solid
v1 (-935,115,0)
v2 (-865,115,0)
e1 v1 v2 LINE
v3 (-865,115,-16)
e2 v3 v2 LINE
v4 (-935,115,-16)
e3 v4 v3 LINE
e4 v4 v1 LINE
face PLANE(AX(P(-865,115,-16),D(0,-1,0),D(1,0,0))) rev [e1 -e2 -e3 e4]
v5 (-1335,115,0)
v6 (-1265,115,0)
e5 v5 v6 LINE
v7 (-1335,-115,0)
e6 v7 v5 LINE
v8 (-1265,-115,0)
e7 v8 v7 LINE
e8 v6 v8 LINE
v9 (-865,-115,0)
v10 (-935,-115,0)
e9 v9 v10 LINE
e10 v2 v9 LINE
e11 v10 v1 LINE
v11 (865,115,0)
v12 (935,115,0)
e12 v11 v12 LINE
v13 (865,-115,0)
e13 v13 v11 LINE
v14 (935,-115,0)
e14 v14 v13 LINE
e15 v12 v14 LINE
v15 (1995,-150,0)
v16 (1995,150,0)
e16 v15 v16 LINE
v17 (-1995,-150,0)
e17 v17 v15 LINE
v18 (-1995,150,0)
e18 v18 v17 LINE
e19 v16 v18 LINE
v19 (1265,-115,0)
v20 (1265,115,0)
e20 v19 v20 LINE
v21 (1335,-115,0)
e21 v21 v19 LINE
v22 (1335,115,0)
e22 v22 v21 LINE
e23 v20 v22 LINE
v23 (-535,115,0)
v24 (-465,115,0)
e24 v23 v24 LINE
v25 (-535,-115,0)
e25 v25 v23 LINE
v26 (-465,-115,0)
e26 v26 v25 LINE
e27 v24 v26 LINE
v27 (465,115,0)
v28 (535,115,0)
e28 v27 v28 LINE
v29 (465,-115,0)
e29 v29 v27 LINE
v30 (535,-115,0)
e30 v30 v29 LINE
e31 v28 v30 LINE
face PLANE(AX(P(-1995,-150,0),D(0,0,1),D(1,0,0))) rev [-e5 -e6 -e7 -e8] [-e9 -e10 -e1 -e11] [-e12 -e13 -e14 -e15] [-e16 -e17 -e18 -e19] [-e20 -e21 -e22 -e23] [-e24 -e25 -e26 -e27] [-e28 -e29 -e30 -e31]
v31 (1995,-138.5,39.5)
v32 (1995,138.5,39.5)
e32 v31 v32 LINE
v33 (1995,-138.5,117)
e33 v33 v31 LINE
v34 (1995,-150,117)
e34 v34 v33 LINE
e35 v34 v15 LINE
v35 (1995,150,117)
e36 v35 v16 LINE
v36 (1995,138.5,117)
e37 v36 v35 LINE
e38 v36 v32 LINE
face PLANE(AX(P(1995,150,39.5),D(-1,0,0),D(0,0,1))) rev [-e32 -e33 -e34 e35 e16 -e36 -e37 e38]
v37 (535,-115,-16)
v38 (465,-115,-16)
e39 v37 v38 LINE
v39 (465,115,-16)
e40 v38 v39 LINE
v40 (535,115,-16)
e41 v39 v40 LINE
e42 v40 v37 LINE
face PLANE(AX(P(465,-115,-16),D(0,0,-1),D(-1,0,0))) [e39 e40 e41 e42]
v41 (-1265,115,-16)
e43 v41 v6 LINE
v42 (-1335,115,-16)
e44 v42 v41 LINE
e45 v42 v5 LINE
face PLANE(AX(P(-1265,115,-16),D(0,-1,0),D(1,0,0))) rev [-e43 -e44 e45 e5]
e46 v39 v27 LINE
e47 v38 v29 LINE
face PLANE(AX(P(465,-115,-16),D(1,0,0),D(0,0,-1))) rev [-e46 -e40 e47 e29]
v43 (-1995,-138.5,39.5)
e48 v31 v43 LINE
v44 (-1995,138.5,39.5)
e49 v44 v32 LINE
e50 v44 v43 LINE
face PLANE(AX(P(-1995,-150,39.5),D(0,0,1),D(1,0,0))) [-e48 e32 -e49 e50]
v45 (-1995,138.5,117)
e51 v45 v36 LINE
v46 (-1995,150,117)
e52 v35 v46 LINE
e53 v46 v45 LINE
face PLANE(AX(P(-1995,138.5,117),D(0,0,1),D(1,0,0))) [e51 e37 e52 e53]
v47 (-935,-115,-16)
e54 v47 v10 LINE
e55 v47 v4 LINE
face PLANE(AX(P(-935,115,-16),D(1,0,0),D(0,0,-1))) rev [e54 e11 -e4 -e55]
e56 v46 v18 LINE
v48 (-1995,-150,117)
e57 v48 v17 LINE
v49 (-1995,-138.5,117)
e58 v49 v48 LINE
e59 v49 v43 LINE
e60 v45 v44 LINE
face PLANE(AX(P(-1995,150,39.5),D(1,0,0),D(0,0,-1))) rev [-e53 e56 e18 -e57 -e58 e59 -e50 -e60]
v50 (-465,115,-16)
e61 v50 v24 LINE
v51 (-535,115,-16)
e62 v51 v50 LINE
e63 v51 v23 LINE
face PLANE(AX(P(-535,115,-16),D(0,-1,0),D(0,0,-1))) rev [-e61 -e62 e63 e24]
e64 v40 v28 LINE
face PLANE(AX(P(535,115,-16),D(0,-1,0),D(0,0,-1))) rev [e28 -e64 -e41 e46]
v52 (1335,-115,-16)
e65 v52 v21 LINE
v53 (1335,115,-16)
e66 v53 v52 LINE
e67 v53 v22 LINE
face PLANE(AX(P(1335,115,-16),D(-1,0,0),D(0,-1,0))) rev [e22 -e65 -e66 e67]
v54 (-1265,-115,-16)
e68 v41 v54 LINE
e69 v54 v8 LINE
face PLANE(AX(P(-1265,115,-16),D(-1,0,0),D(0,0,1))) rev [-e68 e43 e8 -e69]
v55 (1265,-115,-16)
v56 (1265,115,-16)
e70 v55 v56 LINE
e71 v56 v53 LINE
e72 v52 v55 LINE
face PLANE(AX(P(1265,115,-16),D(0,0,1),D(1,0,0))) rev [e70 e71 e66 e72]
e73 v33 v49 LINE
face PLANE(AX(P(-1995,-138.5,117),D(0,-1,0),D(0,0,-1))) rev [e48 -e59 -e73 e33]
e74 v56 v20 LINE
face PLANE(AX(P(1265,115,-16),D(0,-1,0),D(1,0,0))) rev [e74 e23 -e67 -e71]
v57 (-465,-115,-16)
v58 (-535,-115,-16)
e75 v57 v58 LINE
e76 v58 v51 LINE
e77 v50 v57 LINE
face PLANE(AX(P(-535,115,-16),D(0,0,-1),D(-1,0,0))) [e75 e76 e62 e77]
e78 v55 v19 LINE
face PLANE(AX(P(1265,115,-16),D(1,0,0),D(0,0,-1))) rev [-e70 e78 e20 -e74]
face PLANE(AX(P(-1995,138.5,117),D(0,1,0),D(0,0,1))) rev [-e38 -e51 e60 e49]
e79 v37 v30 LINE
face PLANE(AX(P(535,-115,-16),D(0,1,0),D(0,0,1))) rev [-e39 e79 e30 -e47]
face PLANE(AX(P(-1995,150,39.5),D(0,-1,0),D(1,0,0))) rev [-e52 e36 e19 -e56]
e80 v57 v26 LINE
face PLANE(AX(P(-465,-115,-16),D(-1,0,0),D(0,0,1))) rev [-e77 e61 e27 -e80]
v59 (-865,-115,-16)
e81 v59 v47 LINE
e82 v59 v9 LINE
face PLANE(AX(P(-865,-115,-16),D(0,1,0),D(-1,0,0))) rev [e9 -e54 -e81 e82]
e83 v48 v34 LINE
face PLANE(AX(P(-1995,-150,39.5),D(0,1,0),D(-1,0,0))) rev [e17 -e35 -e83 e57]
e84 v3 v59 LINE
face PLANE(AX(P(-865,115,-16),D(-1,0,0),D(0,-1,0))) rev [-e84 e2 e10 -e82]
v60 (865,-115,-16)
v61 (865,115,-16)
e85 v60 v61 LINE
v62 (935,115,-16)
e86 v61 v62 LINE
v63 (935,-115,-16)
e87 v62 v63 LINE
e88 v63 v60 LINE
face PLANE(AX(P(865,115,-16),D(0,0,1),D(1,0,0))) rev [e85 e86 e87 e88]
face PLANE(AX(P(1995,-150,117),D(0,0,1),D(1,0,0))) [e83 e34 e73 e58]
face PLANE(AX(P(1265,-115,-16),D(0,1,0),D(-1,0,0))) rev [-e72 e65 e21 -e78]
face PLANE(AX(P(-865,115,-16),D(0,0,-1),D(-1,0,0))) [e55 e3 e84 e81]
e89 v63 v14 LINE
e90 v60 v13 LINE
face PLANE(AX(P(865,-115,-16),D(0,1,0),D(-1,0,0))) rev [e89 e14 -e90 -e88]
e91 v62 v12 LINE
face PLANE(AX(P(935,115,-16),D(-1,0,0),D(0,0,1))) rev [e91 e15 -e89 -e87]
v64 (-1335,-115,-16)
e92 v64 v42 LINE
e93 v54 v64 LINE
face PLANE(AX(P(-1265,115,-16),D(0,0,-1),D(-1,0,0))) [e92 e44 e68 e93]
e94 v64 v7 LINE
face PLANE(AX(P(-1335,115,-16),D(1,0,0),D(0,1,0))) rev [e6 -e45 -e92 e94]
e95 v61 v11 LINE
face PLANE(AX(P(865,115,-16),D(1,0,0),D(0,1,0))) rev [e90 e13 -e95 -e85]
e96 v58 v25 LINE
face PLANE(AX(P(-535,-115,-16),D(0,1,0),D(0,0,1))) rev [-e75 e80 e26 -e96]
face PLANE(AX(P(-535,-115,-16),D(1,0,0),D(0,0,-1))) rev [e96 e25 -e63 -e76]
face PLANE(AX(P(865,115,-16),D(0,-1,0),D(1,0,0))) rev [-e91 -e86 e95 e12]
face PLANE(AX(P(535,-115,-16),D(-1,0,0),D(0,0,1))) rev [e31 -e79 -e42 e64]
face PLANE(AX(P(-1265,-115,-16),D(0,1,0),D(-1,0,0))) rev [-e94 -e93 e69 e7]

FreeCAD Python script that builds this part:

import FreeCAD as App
import Part
import Sketcher
Q = App.Units.Quantity


def add_polygon(sketch, points):
    """Adds a closed chain of lines whose ends are joined by coincident constraints."""
    first, n = sketch.GeometryCount, len(points)
    for a, b in zip(points, points[1:] + points[:1]):
        sketch.addGeometry(Part.LineSegment(App.Vector(*a, 0), App.Vector(*b, 0)), False)
    for i in range(n):
        sketch.addConstraint(Sketcher.Constraint("Coincident", first + i, 2, first + (i + 1) % n, 1))

doc = App.newDocument("Part")
params = doc.addObject("Spreadsheet::Sheet", "Params")
for row, (alias, value) in enumerate([
    ("sketch1_width", "3990 mm"),
    ("sketch1_height", "300 mm"),
    ("pad1_length", "39.5 mm"),
    ("sketch2_width", "3990 mm"),
    ("sketch2_height", "11.5 mm"),
    ("pad2_length", "77.5 mm"),
    ("sketch3_width", "70 mm"),
    ("sketch3_height", "230 mm"),
    ("pad3_length", "16 mm"),
], start=1):
    params.set(f"A{row}", alias)
    params.set(f"B{row}", "=" + value)
    params.setAlias(f"B{row}", alias)

body = doc.addObject("PartDesign::Body", "Body")

sketch1 = body.newObject("Sketcher::SketchObject", "Sketch")
sketch1.AttachmentSupport = (doc.getObject("XY_Plane"), [""])
sketch1.MapMode = "FlatFace"
add_polygon(sketch1, [(-1995, 150), (-1995, -150), (1995, -150), (1995, 150)])
sketch1.addConstraint([
    Sketcher.Constraint("Vertical", 0),
    Sketcher.Constraint("Horizontal", 1),
    Sketcher.Constraint("Vertical", 2),
    Sketcher.Constraint("Horizontal", 3),
    Sketcher.Constraint("Symmetric", 0, 2, 2, 2, -1, 1),
    Sketcher.Constraint("DistanceX", 1, 1, 1, 2, Q("3990 mm")),
    Sketcher.Constraint("DistanceY", 0, 2, 0, 1, Q("300 mm")),
])
sketch1.setExpression("Constraints[9]", "Params.sketch1_width")
sketch1.setExpression("Constraints[10]", "Params.sketch1_height")
pad1 = body.newObject("PartDesign::Pad", "Pad")
pad1.Profile = sketch1
pad1.setExpression("Length", "Params.pad1_length")

sketch2 = body.newObject("Sketcher::SketchObject", "Sketch001")
sketch2.AttachmentSupport = (doc.getObject("XY_Plane"), [""])
sketch2.MapMode = "FlatFace"
sketch2.AttachmentOffset = App.Placement(App.Vector(0, 0, 39.5), App.Rotation())
add_polygon(sketch2, [(-1995, 150), (-1995, 138), (1995, 138), (1995, 150)])
add_polygon(sketch2, [(-1995, -138), (-1995, -150), (1995, -150), (1995, -138)])
sketch2.addConstraint([
    Sketcher.Constraint("Vertical", 0),
    Sketcher.Constraint("Horizontal", 1),
    Sketcher.Constraint("Vertical", 2),
    Sketcher.Constraint("Horizontal", 3),
    Sketcher.Constraint("Vertical", 4),
    Sketcher.Constraint("Horizontal", 5),
    Sketcher.Constraint("Vertical", 6),
    Sketcher.Constraint("Horizontal", 7),
    Sketcher.Constraint("Symmetric", 2, 2, 4, 2, -1, 1),
    Sketcher.Constraint("Symmetric", 0, 2, 6, 2, -1, 1),
    Sketcher.Constraint("Vertical", 3, 2, 4, 2),
    Sketcher.Constraint("DistanceX", 1, 1, 1, 2, Q("3990 mm")),
    Sketcher.Constraint("DistanceY", 0, 2, 0, 1, Q("11.5 mm")),
    Sketcher.Constraint("DistanceY", -1, 1, 2, 2, Q("150 mm")),
])
sketch2.setExpression("Constraints[19]", "Params.sketch2_width")
sketch2.setExpression("Constraints[20]", "Params.sketch2_height")
pad2 = body.newObject("PartDesign::Pad", "Pad001")
pad2.Profile = sketch2
pad2.setExpression("Length", "Params.pad2_length")

sketch3 = body.newObject("Sketcher::SketchObject", "Sketch002")
sketch3.AttachmentSupport = (doc.getObject("XY_Plane"), [""])
sketch3.MapMode = "FlatFace"
add_polygon(sketch3, [(-1265, 115), (-1265, -115), (-1335, -115), (-1335, 115)])
add_polygon(sketch3, [(-865, 115), (-865, -115), (-935, -115), (-935, 115)])
add_polygon(sketch3, [(1335, 115), (1335, -115), (1265, -115), (1265, 115)])
add_polygon(sketch3, [(-465, 115), (-465, -115), (-535, -115), (-535, 115)])
add_polygon(sketch3, [(935, 115), (935, -115), (865, -115), (865, 115)])
add_polygon(sketch3, [(535, 115), (535, -115), (465, -115), (465, 115)])
sketch3.addConstraint([
    Sketcher.Constraint("Vertical", 0),
    Sketcher.Constraint("Horizontal", 1),
    Sketcher.Constraint("Vertical", 2),
    Sketcher.Constraint("Horizontal", 3),
    Sketcher.Constraint("Vertical", 4),
    Sketcher.Constraint("Horizontal", 5),
    Sketcher.Constraint("Vertical", 6),
    Sketcher.Constraint("Horizontal", 7),
    Sketcher.Constraint("Vertical", 8),
    Sketcher.Constraint("Horizontal", 9),
    Sketcher.Constraint("Vertical", 10),
    Sketcher.Constraint("Horizontal", 11),
    Sketcher.Constraint("Vertical", 12),
    Sketcher.Constraint("Horizontal", 13),
    Sketcher.Constraint("Vertical", 14),
    Sketcher.Constraint("Horizontal", 15),
    Sketcher.Constraint("Vertical", 16),
    Sketcher.Constraint("Horizontal", 17),
    Sketcher.Constraint("Vertical", 18),
    Sketcher.Constraint("Horizontal", 19),
    Sketcher.Constraint("Vertical", 20),
    Sketcher.Constraint("Horizontal", 21),
    Sketcher.Constraint("Vertical", 22),
    Sketcher.Constraint("Horizontal", 23),
    Sketcher.Constraint("Symmetric", 2, 2, 8, 2, -1, 1),
    Sketcher.Constraint("Symmetric", 0, 2, 10, 2, -1, 1),
    Sketcher.Constraint("Symmetric", 6, 2, 16, 2, -1, 1),
    Sketcher.Constraint("Symmetric", 4, 2, 18, 2, -1, 1),
    Sketcher.Constraint("Symmetric", 14, 2, 20, 2, -1, 1),
    Sketcher.Constraint("Symmetric", 12, 2, 22, 2, -1, 1),
    Sketcher.Constraint("Horizontal", 1, 2, 4, 2),
    Sketcher.Constraint("Horizontal", 3, 2, 6, 2),
    Sketcher.Constraint("Horizontal", 5, 2, 8, 2),
    Sketcher.Constraint("Horizontal", 9, 2, 12, 2),
    Sketcher.Constraint("Horizontal", 11, 2, 14, 2),
    Sketcher.Constraint("Equal", 3, 5),
    Sketcher.Constraint("Equal", 11, 13),
    Sketcher.Constraint("DistanceX", 1, 2, 1, 1, Q("70 mm")),
    Sketcher.Constraint("DistanceY", 0, 2, 0, 1, Q("230 mm")),
    Sketcher.Constraint("DistanceX", 0, 2, -1, 1, Q("1265 mm")),
    Sketcher.Constraint("DistanceX", 4, 2, -1, 1, Q("865 mm")),
    Sketcher.Constraint("DistanceX", 12, 2, -1, 1, Q("465 mm")),
])
sketch3.setExpression("Constraints[61]", "Params.sketch3_width")
sketch3.setExpression("Constraints[62]", "Params.sketch3_height")
pad3 = body.newObject("PartDesign::Pad", "Pad002")
pad3.Profile = sketch3
pad3.setExpression("Length", "Params.pad3_length")
pad3.Reversed = True

doc.recompute()
